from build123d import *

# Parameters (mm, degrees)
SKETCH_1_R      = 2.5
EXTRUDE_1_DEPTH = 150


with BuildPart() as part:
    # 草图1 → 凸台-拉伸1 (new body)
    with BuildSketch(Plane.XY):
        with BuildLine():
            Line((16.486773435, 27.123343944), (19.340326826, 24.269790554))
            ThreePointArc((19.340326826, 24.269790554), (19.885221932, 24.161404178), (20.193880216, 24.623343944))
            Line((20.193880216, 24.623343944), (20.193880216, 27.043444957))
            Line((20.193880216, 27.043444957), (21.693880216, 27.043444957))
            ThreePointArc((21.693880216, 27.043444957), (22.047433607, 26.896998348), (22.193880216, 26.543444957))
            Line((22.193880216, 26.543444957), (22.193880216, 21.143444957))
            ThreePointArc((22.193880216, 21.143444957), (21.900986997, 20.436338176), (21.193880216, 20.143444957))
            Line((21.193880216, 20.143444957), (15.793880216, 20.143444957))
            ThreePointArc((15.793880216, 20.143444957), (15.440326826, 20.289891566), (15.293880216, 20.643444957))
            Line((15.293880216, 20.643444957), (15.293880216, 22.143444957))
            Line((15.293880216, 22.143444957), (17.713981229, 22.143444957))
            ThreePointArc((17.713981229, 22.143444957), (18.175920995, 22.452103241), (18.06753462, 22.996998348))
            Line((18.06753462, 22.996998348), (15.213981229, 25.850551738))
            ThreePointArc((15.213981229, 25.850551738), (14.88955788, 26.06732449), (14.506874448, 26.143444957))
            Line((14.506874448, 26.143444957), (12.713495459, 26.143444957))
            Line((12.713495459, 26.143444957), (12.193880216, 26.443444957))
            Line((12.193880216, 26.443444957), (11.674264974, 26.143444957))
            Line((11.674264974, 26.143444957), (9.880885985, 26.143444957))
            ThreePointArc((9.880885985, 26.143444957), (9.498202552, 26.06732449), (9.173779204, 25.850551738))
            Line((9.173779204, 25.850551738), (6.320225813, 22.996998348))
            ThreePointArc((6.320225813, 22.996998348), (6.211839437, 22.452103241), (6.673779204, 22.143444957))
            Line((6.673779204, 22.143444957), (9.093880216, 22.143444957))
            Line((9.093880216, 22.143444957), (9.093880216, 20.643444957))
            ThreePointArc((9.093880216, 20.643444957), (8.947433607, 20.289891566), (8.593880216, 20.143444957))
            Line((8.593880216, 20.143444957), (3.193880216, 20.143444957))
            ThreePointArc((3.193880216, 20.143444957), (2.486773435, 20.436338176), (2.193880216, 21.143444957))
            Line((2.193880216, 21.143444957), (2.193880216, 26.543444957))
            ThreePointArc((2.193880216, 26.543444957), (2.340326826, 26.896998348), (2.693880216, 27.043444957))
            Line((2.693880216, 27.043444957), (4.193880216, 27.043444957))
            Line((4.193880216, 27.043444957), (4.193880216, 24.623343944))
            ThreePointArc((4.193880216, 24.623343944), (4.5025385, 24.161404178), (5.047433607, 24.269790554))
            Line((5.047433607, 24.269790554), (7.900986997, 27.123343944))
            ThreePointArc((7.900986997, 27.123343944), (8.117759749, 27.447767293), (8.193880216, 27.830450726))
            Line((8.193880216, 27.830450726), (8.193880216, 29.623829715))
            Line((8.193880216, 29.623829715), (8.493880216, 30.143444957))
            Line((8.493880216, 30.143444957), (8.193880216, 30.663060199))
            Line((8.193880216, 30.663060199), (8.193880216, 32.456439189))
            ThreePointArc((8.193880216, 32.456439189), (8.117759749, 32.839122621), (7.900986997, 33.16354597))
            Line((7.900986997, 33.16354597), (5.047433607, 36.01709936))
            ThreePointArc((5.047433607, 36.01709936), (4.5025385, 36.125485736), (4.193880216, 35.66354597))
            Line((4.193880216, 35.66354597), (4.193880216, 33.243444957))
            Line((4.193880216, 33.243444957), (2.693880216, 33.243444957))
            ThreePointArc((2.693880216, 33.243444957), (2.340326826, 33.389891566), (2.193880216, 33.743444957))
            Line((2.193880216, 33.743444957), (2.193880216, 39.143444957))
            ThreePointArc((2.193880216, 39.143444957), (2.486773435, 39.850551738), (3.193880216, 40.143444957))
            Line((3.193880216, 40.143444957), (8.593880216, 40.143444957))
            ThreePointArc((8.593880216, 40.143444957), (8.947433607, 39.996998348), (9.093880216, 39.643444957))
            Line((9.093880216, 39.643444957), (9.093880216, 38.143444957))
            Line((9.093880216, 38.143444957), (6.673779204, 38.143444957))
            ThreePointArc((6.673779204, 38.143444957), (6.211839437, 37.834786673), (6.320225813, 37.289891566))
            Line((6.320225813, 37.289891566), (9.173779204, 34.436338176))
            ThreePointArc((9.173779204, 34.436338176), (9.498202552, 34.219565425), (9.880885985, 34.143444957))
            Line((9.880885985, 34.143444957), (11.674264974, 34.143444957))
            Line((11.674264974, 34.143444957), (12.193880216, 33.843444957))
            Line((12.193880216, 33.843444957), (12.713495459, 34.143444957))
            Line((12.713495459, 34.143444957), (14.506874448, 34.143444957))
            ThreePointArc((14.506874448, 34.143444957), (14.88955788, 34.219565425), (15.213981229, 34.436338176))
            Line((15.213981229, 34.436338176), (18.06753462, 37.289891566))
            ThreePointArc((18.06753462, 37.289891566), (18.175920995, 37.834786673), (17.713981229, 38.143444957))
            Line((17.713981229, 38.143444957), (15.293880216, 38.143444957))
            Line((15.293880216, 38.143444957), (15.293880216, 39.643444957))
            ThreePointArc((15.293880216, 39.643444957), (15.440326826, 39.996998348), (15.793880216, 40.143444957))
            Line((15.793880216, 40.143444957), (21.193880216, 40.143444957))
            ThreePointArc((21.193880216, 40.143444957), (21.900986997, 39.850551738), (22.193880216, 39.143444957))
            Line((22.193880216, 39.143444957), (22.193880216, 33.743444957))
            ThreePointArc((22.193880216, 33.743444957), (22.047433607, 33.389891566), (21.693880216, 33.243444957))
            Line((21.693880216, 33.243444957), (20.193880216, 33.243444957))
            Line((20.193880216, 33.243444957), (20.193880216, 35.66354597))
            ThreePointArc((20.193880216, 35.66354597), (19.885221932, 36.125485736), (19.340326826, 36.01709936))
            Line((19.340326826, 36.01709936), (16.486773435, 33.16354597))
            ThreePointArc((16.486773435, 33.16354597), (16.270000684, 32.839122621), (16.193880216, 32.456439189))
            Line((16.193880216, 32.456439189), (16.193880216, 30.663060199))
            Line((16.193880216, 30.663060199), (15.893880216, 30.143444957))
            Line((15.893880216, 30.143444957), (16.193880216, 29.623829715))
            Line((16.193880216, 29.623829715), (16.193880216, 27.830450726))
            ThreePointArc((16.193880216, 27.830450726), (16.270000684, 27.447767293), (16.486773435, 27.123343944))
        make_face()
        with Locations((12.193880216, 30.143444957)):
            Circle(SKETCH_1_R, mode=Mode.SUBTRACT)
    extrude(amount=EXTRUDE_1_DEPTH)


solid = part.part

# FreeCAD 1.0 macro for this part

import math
import FreeCAD as App
import Part
import Sketcher

V = App.Vector
Q = App.Units.Quantity

doc = App.newDocument("Part")
body = doc.addObject("PartDesign::Body", "Body")

sketch1 = body.newObject("Sketcher::SketchObject", "Sketch")
sketch1.AttachmentSupport = (doc.getObject("XY_Plane"), [""])
sketch1.MapMode = "FlatFace"
sketch1.addGeometry([
    Part.LineSegment(V(19.34, 24.27, 0), V(16.49, 27.12, 0)),
    Part.ArcOfCircle(Part.Circle(V(17.19, 27.83, 0), V(0, 0, 1), 1), math.radians(-180), math.radians(-135)),
    Part.LineSegment(V(16.19, 27.83, 0), V(16.19, 29.62, 0)),
    Part.LineSegment(V(16.19, 29.62, 0), V(15.89, 30.14, 0)),
    Part.LineSegment(V(15.89, 30.14, 0), V(16.19, 30.66, 0)),
    Part.LineSegment(V(16.19, 30.66, 0), V(16.19, 32.46, 0)),
    Part.ArcOfCircle(Part.Circle(V(17.19, 32.46, 0), V(0, 0, 1), 1), math.radians(135), math.radians(180)),
    Part.LineSegment(V(16.49, 33.16, 0), V(19.34, 36.02, 0)),
    Part.ArcOfCircle(Part.Circle(V(19.69, 35.66, 0), V(0, 0, 1), 0.5), math.radians(0), math.radians(135)),
    Part.LineSegment(V(20.19, 35.66, 0), V(20.19, 33.24, 0)),
    Part.LineSegment(V(20.19, 33.24, 0), V(21.69, 33.24, 0)),
    Part.ArcOfCircle(Part.Circle(V(21.69, 33.74, 0), V(0, 0, 1), 0.5), math.radians(-90), math.radians(0)),
    Part.LineSegment(V(22.19, 33.74, 0), V(22.19, 39.14, 0)),
    Part.ArcOfCircle(Part.Circle(V(21.19, 39.14, 0), V(0, 0, 1), 1), math.radians(0), math.radians(90)),
    Part.LineSegment(V(21.19, 40.14, 0), V(15.79, 40.14, 0)),
    Part.ArcOfCircle(Part.Circle(V(15.79, 39.64, 0), V(0, 0, 1), 0.5), math.radians(90), math.radians(180)),
    Part.LineSegment(V(15.29, 39.64, 0), V(15.29, 38.14, 0)),
    Part.LineSegment(V(15.29, 38.14, 0), V(17.71, 38.14, 0)),
    Part.ArcOfCircle(Part.Circle(V(17.71, 37.64, 0), V(0, 0, 1), 0.5), math.radians(-45), math.radians(90)),
    Part.LineSegment(V(18.07, 37.29, 0), V(15.21, 34.44, 0)),
    Part.ArcOfCircle(Part.Circle(V(14.51, 35.14, 0), V(0, 0, 1), 1), math.radians(-90), math.radians(-45)),
    Part.LineSegment(V(14.51, 34.14, 0), V(12.71, 34.14, 0)),
    Part.LineSegment(V(12.71, 34.14, 0), V(12.19, 33.84, 0)),
    Part.LineSegment(V(12.19, 33.84, 0), V(11.67, 34.14, 0)),
    Part.LineSegment(V(11.67, 34.14, 0), V(9.88, 34.14, 0)),
    Part.ArcOfCircle(Part.Circle(V(9.88, 35.14, 0), V(0, 0, 1), 1), math.radians(-135), math.radians(-90)),
    Part.LineSegment(V(9.17, 34.44, 0), V(6.32, 37.29, 0)),
    Part.ArcOfCircle(Part.Circle(V(6.67, 37.64, 0), V(0, 0, 1), 0.5), math.radians(90), math.radians(225)),
    Part.LineSegment(V(6.67, 38.14, 0), V(9.09, 38.14, 0)),
    Part.LineSegment(V(9.09, 38.14, 0), V(9.09, 39.64, 0)),
    Part.ArcOfCircle(Part.Circle(V(8.59, 39.64, 0), V(0, 0, 1), 0.5), math.radians(0), math.radians(90)),
    Part.LineSegment(V(8.59, 40.14, 0), V(3.19, 40.14, 0)),
    Part.ArcOfCircle(Part.Circle(V(3.19, 39.14, 0), V(0, 0, 1), 1), math.radians(90), math.radians(180)),
    Part.LineSegment(V(2.19, 39.14, 0), V(2.19, 33.74, 0)),
    Part.ArcOfCircle(Part.Circle(V(2.69, 33.74, 0), V(0, 0, 1), 0.5), math.radians(180), math.radians(270)),
    Part.LineSegment(V(2.69, 33.24, 0), V(4.19, 33.24, 0)),
    Part.LineSegment(V(4.19, 33.24, 0), V(4.19, 35.66, 0)),
    Part.ArcOfCircle(Part.Circle(V(4.69, 35.66, 0), V(0, 0, 1), 0.5), math.radians(45), math.radians(180)),
    Part.LineSegment(V(5.05, 36.02, 0), V(7.9, 33.16, 0)),
    Part.ArcOfCircle(Part.Circle(V(7.19, 32.46, 0), V(0, 0, 1), 1), math.radians(0), math.radians(45)),
    Part.LineSegment(V(8.19, 32.46, 0), V(8.19, 30.66, 0)),
    Part.LineSegment(V(8.19, 30.66, 0), V(8.49, 30.14, 0)),
    Part.LineSegment(V(8.49, 30.14, 0), V(8.19, 29.62, 0)),
    Part.LineSegment(V(8.19, 29.62, 0), V(8.19, 27.83, 0)),
    Part.ArcOfCircle(Part.Circle(V(7.19, 27.83, 0), V(0, 0, 1), 1), math.radians(-45), math.radians(0)),
    Part.LineSegment(V(7.9, 27.12, 0), V(5.05, 24.27, 0)),
    Part.ArcOfCircle(Part.Circle(V(4.69, 24.62, 0), V(0, 0, 1), 0.5), math.radians(180), math.radians(315)),
    Part.LineSegment(V(4.19, 24.62, 0), V(4.19, 27.04, 0)),
    Part.LineSegment(V(4.19, 27.04, 0), V(2.69, 27.04, 0)),
    Part.ArcOfCircle(Part.Circle(V(2.69, 26.54, 0), V(0, 0, 1), 0.5), math.radians(90), math.radians(180)),
    Part.LineSegment(V(2.19, 26.54, 0), V(2.19, 21.14, 0)),
    Part.ArcOfCircle(Part.Circle(V(3.19, 21.14, 0), V(0, 0, 1), 1), math.radians(-180), math.radians(-90)),
    Part.LineSegment(V(3.19, 20.14, 0), V(8.59, 20.14, 0)),
    Part.ArcOfCircle(Part.Circle(V(8.59, 20.64, 0), V(0, 0, 1), 0.5), math.radians(-90), math.radians(0)),
    Part.LineSegment(V(9.09, 20.64, 0), V(9.09, 22.14, 0)),
    Part.LineSegment(V(9.09, 22.14, 0), V(6.67, 22.14, 0)),
    Part.ArcOfCircle(Part.Circle(V(6.67, 22.64, 0), V(0, 0, 1), 0.5), math.radians(135), math.radians(270)),
    Part.LineSegment(V(6.32, 23, 0), V(9.17, 25.85, 0)),
    Part.ArcOfCircle(Part.Circle(V(9.88, 25.14, 0), V(0, 0, 1), 1), math.radians(90), math.radians(135)),
    Part.LineSegment(V(9.88, 26.14, 0), V(11.67, 26.14, 0)),
    Part.LineSegment(V(11.67, 26.14, 0), V(12.19, 26.44, 0)),
    Part.LineSegment(V(12.19, 26.44, 0), V(12.71, 26.14, 0)),
    Part.LineSegment(V(12.71, 26.14, 0), V(14.51, 26.14, 0)),
    Part.ArcOfCircle(Part.Circle(V(14.51, 25.14, 0), V(0, 0, 1), 1), math.radians(45), math.radians(90)),
    Part.LineSegment(V(15.21, 25.85, 0), V(18.07, 23, 0)),
    Part.ArcOfCircle(Part.Circle(V(17.71, 22.64, 0), V(0, 0, 1), 0.5), math.radians(-90), math.radians(45)),
    Part.LineSegment(V(17.71, 22.14, 0), V(15.29, 22.14, 0)),
    Part.LineSegment(V(15.29, 22.14, 0), V(15.29, 20.64, 0)),
    Part.ArcOfCircle(Part.Circle(V(15.79, 20.64, 0), V(0, 0, 1), 0.5), math.radians(180), math.radians(270)),
    Part.LineSegment(V(15.79, 20.14, 0), V(21.19, 20.14, 0)),
    Part.ArcOfCircle(Part.Circle(V(21.19, 21.14, 0), V(0, 0, 1), 1), math.radians(-90), math.radians(0)),
    Part.LineSegment(V(22.19, 21.14, 0), V(22.19, 26.54, 0)),
    Part.ArcOfCircle(Part.Circle(V(21.69, 26.54, 0), V(0, 0, 1), 0.5), math.radians(0), math.radians(90)),
    Part.LineSegment(V(21.69, 27.04, 0), V(20.19, 27.04, 0)),
    Part.LineSegment(V(20.19, 27.04, 0), V(20.19, 24.62, 0)),
    Part.ArcOfCircle(Part.Circle(V(19.69, 24.62, 0), V(0, 0, 1), 0.5), math.radians(-135), math.radians(0)),
    Part.Circle(V(12.19, 30.14, 0), V(0, 0, 1), 2.5),
], False)
sketch1.addConstraint([
    Sketcher.Constraint("Tangent", 0, 2, 1, 2),
    Sketcher.Constraint("Tangent", 1, 1, 2, 1),
    Sketcher.Constraint("Coincident", 2, 2, 3, 1),
    Sketcher.Constraint("Coincident", 3, 2, 4, 1),
    Sketcher.Constraint("Coincident", 4, 2, 5, 1),
    Sketcher.Constraint("Tangent", 5, 2, 6, 2),
    Sketcher.Constraint("Tangent", 6, 1, 7, 1),
    Sketcher.Constraint("Tangent", 7, 2, 8, 2),
    Sketcher.Constraint("Tangent", 8, 1, 9, 1),
    Sketcher.Constraint("Coincident", 9, 2, 10, 1),
    Sketcher.Constraint("Tangent", 10, 2, 11, 1),
    Sketcher.Constraint("Tangent", 11, 2, 12, 1),
    Sketcher.Constraint("Tangent", 12, 2, 13, 1),
    Sketcher.Constraint("Tangent", 13, 2, 14, 1),
    Sketcher.Constraint("Tangent", 14, 2, 15, 1),
    Sketcher.Constraint("Tangent", 15, 2, 16, 1),
    Sketcher.Constraint("Coincident", 16, 2, 17, 1),
    Sketcher.Constraint("Tangent", 17, 2, 18, 2),
    Sketcher.Constraint("Tangent", 18, 1, 19, 1),
    Sketcher.Constraint("Tangent", 19, 2, 20, 2),
    Sketcher.Constraint("Tangent", 20, 1, 21, 1),
    Sketcher.Constraint("Coincident", 21, 2, 22, 1),
    Sketcher.Constraint("Coincident", 22, 2, 23, 1),
    Sketcher.Constraint("Coincident", 23, 2, 24, 1),
    Sketcher.Constraint("Tangent", 24, 2, 25, 2),
    Sketcher.Constraint("Tangent", 25, 1, 26, 1),
    Sketcher.Constraint("Tangent", 26, 2, 27, 2),
    Sketcher.Constraint("Tangent", 27, 1, 28, 1),
    Sketcher.Constraint("Coincident", 28, 2, 29, 1),
    Sketcher.Constraint("Tangent", 29, 2, 30, 1),
    Sketcher.Constraint("Tangent", 30, 2, 31, 1),
    Sketcher.Constraint("Tangent", 31, 2, 32, 1),
    Sketcher.Constraint("Tangent", 32, 2, 33, 1),
    Sketcher.Constraint("Tangent", 33, 2, 34, 1),
    Sketcher.Constraint("Tangent", 34, 2, 35, 1),
    Sketcher.Constraint("Coincident", 35, 2, 36, 1),
    Sketcher.Constraint("Tangent", 36, 2, 37, 2),
    Sketcher.Constraint("Tangent", 37, 1, 38, 1),
    Sketcher.Constraint("Tangent", 38, 2, 39, 2),
    Sketcher.Constraint("Tangent", 39, 1, 40, 1),
    Sketcher.Constraint("Coincident", 40, 2, 41, 1),
    Sketcher.Constraint("Coincident", 41, 2, 42, 1),
    Sketcher.Constraint("Coincident", 42, 2, 43, 1),
    Sketcher.Constraint("Tangent", 43, 2, 44, 2),
    Sketcher.Constraint("Tangent", 44, 1, 45, 1),
    Sketcher.Constraint("Tangent", 45, 2, 46, 2),
    Sketcher.Constraint("Tangent", 46, 1, 47, 1),
    Sketcher.Constraint("Coincident", 47, 2, 48, 1),
    Sketcher.Constraint("Tangent", 48, 2, 49, 1),
    Sketcher.Constraint("Tangent", 49, 2, 50, 1),
    Sketcher.Constraint("Tangent", 50, 2, 51, 1),
    Sketcher.Constraint("Tangent", 51, 2, 52, 1),
    Sketcher.Constraint("Tangent", 52, 2, 53, 1),
    Sketcher.Constraint("Tangent", 53, 2, 54, 1),
    Sketcher.Constraint("Coincident", 54, 2, 55, 1),
    Sketcher.Constraint("Tangent", 55, 2, 56, 2),
    Sketcher.Constraint("Tangent", 56, 1, 57, 1),
    Sketcher.Constraint("Tangent", 57, 2, 58, 2),
    Sketcher.Constraint("Tangent", 58, 1, 59, 1),
    Sketcher.Constraint("Coincident", 59, 2, 60, 1),
    Sketcher.Constraint("Coincident", 60, 2, 61, 1),
    Sketcher.Constraint("Coincident", 61, 2, 62, 1),
    Sketcher.Constraint("Tangent", 62, 2, 63, 2),
    Sketcher.Constraint("Tangent", 63, 1, 64, 1),
    Sketcher.Constraint("Tangent", 64, 2, 65, 2),
    Sketcher.Constraint("Tangent", 65, 1, 66, 1),
    Sketcher.Constraint("Coincident", 66, 2, 67, 1),
    Sketcher.Constraint("Tangent", 67, 2, 68, 1),
    Sketcher.Constraint("Tangent", 68, 2, 69, 1),
    Sketcher.Constraint("Tangent", 69, 2, 70, 1),
    Sketcher.Constraint("Tangent", 70, 2, 71, 1),
    Sketcher.Constraint("Tangent", 71, 2, 72, 1),
    Sketcher.Constraint("Tangent", 72, 2, 73, 1),
    Sketcher.Constraint("Coincident", 73, 2, 74, 1),
    Sketcher.Constraint("Tangent", 74, 2, 75, 2),
    Sketcher.Constraint("Tangent", 75, 1, 0, 1),
    Sketcher.Constraint("Vertical", 2),
    Sketcher.Constraint("Vertical", 5),
    Sketcher.Constraint("Vertical", 9),
    Sketcher.Constraint("Horizontal", 10),
    Sketcher.Constraint("Vertical", 12),
    Sketcher.Constraint("Horizontal", 14),
    Sketcher.Constraint("Vertical", 16),
    Sketcher.Constraint("Horizontal", 17),
    Sketcher.Constraint("Horizontal", 21),
    Sketcher.Constraint("Horizontal", 24),
    Sketcher.Constraint("Horizontal", 28),
    Sketcher.Constraint("Vertical", 29),
    Sketcher.Constraint("Horizontal", 31),
    Sketcher.Constraint("Vertical", 33),
    Sketcher.Constraint("Horizontal", 35),
    Sketcher.Constraint("Vertical", 36),
    Sketcher.Constraint("Vertical", 40),
    Sketcher.Constraint("Vertical", 43),
    Sketcher.Constraint("Vertical", 47),
    Sketcher.Constraint("Horizontal", 48),
    Sketcher.Constraint("Vertical", 50),
    Sketcher.Constraint("Horizontal", 52),
    Sketcher.Constraint("Vertical", 54),
    Sketcher.Constraint("Horizontal", 55),
    Sketcher.Constraint("Horizontal", 59),
    Sketcher.Constraint("Horizontal", 62),
    Sketcher.Constraint("Horizontal", 66),
    Sketcher.Constraint("Vertical", 67),
    Sketcher.Constraint("Horizontal", 69),
    Sketcher.Constraint("Vertical", 71),
    Sketcher.Constraint("Horizontal", 73),
    Sketcher.Constraint("Vertical", 74),
    Sketcher.Constraint("Equal", 1, 6),
    Sketcher.Constraint("Equal", 8, 11),
    Sketcher.Constraint("Equal", 6, 13),
    Sketcher.Constraint("Equal", 11, 15),
    Sketcher.Constraint("Equal", 15, 18),
    Sketcher.Constraint("Equal", 13, 20),
    Sketcher.Constraint("Equal", 20, 25),
    Sketcher.Constraint("Equal", 18, 27),
    Sketcher.Constraint("Equal", 27, 30),
    Sketcher.Constraint("Equal", 25, 32),
    Sketcher.Constraint("Equal", 30, 34),
    Sketcher.Constraint("Equal", 34, 37),
    Sketcher.Constraint("Equal", 32, 39),
    Sketcher.Constraint("Equal", 39, 44),
    Sketcher.Constraint("Equal", 37, 46),
    Sketcher.Constraint("Equal", 46, 49),
    Sketcher.Constraint("Equal", 44, 51),
    Sketcher.Constraint("Equal", 49, 53),
    Sketcher.Constraint("Equal", 53, 56),
    Sketcher.Constraint("Equal", 51, 58),
    Sketcher.Constraint("Equal", 58, 63),
    Sketcher.Constraint("Equal", 56, 65),
    Sketcher.Constraint("Equal", 65, 68),
    Sketcher.Constraint("Equal", 63, 70),
    Sketcher.Constraint("Equal", 68, 72),
    Sketcher.Constraint("Equal", 72, 75),
    Sketcher.Constraint("Perpendicular", 0, 7),
    Sketcher.Constraint("Parallel", 7, 19),
    Sketcher.Constraint("Perpendicular", 3, 22),
    Sketcher.Constraint("Perpendicular", 4, 23),
    Sketcher.Constraint("Perpendicular", 19, 26),
    Sketcher.Constraint("Parallel", 26, 38),
    Sketcher.Constraint("Perpendicular", 22, 41),
    Sketcher.Constraint("Perpendicular", 23, 42),
    Sketcher.Constraint("Perpendicular", 38, 45),
    Sketcher.Constraint("Parallel", 45, 57),
    Sketcher.Constraint("Perpendicular", 41, 60),
    Sketcher.Constraint("Perpendicular", 42, 61),
    Sketcher.Constraint("Perpendicular", 57, 64),
    Sketcher.Constraint("Horizontal", 20, 3, 25, 3),
    Sketcher.Constraint("Horizontal", 18, 3, 27, 3),
    Sketcher.Constraint("Horizontal", 15, 3, 30, 3),
    Sketcher.Constraint("Horizontal", 11, 3, 34, 3),
    Sketcher.Constraint("Horizontal", 8, 3, 37, 3),
    Sketcher.Constraint("Horizontal", 6, 3, 39, 3),
    Sketcher.Constraint("Horizontal", 1, 3, 44, 3),
    Sketcher.Constraint("Horizontal", 58, 3, 63, 3),
    Sketcher.Constraint("Horizontal", 56, 3, 65, 3),
    Sketcher.Constraint("Horizontal", 53, 3, 68, 3),
    Sketcher.Constraint("Horizontal", 49, 3, 72, 3),
    Sketcher.Constraint("Horizontal", 46, 3, 75, 3),
    Sketcher.Constraint("Horizontal", 76, 3, 3, 2),
    Sketcher.Constraint("Horizontal", 19, 2, 25, 1),
    Sketcher.Constraint("Horizontal", 4, 2, 40, 2),
    Sketcher.Constraint("Horizontal", 3, 2, 41, 2),
    Sketcher.Constraint("Horizontal", 2, 2, 42, 2),
    Sketcher.Constraint("Vertical", 1, 3, 6, 3),
    Sketcher.Constraint("Vertical", 39, 3, 44, 3),
    Sketcher.Constraint("Vertical", 37, 3, 46, 3),
    Sketcher.Constraint("Vertical", 34, 3, 49, 3),
    Sketcher.Constraint("Vertical", 30, 3, 53, 3),
    Sketcher.Constraint("Vertical", 27, 3, 56, 3),
    Sketcher.Constraint("Vertical", 25, 3, 58, 3),
    Sketcher.Constraint("Vertical", 20, 3, 63, 3),
    Sketcher.Constraint("Vertical", 15, 3, 68, 3),
    Sketcher.Constraint("Vertical", 13, 3, 70, 3),
    Sketcher.Constraint("Vertical", 76, 3, 22, 2),
    Sketcher.Constraint("Vertical", 23, 2, 59, 2),
    Sketcher.Constraint("Vertical", 22, 2, 60, 2),
    Sketcher.Constraint("Equal", 21, 24),
    Sketcher.Constraint("Equal", 17, 28),
    Sketcher.Constraint("Equal", 14, 31),
    Sketcher.Constraint("Equal", 10, 35),
    Sketcher.Constraint("Equal", 62, 2),
    Sketcher.Constraint("Equal", 2, 5),
    Sketcher.Constraint("Equal", 66, 9),
    Sketcher.Constraint("Equal", 69, 12),
    Sketcher.Constraint("Equal", 73, 16),
    Sketcher.Constraint("Equal", 36, 47),
    Sketcher.Constraint("Equal", 33, 50),
    Sketcher.Constraint("Equal", 29, 54),
    Sketcher.Constraint("Equal", 7, 19),
    Sketcher.Constraint("Equal", 4, 22),
    Sketcher.Constraint("Diameter", 76, Q("5 mm")),
    Sketcher.Constraint("Radius", 1, Q("1 mm")),
    Sketcher.Constraint("Radius", 8, Q("0.5 mm")),
    Sketcher.Constraint("Angle", 3, Q("120 deg")),
    Sketcher.Constraint("DistanceX", 10, 1, 10, 2, Q("1.5 mm")),
    Sketcher.Constraint("DistanceX", 14, 2, 14, 1, Q("5.4 mm")),
    Sketcher.Constraint("Distance", 3, Q("0.6 mm")),
    Sketcher.Constraint("DistanceX", 17, 1, 17, 2, Q("2.420101 mm")),
    Sketcher.Constraint("DistanceY", -1, 1, 56, 1, Q("22.996998 mm")),
    Sketcher.Constraint("DistanceX", 21, 2, 21, 1, Q("1.793379 mm")),
    Sketcher.Constraint("DistanceY", -1, 1, 7, 2, Q("36.017099 mm")),
    Sketcher.Constraint("DistanceX", -1, 1, 1, 3, Q("17.19388 mm")),
])
pad1 = body.newObject("PartDesign::Pad", "Pad")
pad1.Profile = sketch1
pad1.Length = 150

doc.recompute()
